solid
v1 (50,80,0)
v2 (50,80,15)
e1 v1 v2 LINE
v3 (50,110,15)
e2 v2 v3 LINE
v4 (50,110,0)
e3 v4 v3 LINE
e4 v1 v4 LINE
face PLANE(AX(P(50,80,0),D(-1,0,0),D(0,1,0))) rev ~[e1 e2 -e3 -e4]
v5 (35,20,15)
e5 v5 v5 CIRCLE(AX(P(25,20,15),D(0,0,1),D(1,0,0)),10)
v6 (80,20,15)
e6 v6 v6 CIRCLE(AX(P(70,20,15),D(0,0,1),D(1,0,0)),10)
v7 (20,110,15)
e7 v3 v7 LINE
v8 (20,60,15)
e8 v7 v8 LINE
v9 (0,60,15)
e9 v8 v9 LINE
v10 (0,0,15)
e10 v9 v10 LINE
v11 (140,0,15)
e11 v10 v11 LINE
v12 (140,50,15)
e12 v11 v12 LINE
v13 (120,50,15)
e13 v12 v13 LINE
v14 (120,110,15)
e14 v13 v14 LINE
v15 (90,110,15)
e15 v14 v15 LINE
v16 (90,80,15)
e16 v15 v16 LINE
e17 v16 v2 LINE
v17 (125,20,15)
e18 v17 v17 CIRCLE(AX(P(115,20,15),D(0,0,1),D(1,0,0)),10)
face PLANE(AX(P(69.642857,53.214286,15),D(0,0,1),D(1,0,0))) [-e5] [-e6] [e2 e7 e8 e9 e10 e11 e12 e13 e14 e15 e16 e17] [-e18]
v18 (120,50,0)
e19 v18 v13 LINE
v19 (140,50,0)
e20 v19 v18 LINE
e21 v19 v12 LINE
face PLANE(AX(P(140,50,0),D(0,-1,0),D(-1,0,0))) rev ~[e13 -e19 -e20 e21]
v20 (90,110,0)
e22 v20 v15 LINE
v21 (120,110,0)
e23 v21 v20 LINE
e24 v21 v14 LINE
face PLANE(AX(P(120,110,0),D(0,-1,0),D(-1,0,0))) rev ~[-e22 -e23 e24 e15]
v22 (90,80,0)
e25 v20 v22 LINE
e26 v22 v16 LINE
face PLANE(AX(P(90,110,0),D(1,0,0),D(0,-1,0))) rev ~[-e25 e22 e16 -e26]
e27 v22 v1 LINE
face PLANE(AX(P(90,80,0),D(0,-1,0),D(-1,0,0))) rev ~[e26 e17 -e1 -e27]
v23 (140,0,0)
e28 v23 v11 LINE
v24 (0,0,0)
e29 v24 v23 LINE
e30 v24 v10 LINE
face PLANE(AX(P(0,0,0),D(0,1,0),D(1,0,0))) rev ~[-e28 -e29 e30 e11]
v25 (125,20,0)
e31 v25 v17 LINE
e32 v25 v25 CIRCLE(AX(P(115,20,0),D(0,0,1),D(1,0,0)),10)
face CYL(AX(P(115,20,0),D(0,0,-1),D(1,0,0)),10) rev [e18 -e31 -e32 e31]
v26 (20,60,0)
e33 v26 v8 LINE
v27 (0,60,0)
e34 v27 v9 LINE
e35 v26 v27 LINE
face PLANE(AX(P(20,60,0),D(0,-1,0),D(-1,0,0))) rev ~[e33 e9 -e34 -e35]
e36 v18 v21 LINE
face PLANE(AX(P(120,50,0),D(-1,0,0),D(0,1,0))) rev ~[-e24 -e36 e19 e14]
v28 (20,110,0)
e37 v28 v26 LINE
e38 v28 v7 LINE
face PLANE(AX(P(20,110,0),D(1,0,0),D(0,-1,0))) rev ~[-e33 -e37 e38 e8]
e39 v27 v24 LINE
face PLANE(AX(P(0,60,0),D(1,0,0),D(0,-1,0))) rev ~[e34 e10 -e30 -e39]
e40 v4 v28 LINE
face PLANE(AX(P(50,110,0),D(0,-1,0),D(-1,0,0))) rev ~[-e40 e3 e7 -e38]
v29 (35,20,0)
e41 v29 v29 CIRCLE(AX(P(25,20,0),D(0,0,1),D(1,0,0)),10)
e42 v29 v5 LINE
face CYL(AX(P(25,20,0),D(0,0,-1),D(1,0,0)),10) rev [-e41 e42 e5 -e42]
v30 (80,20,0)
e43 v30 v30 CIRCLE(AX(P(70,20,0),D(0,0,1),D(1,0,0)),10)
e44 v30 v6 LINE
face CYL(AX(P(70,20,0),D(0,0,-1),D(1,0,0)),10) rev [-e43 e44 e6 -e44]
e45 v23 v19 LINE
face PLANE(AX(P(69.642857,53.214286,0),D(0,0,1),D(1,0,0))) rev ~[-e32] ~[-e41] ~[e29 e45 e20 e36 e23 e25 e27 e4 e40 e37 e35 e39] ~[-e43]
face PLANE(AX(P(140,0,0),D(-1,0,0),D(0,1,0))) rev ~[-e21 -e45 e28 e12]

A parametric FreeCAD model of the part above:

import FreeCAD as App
import Part
import Sketcher

V = App.Vector


def add_polygon(sketch, points):
    """Adds a closed chain of lines whose ends are joined by coincident constraints."""
    first, n = sketch.GeometryCount, len(points)
    for a, b in zip(points, points[1:] + points[:1]):
        sketch.addGeometry(Part.LineSegment(App.Vector(*a, 0), App.Vector(*b, 0)), False)
    for i in range(n):
        sketch.addConstraint(Sketcher.Constraint("Coincident", first + i, 2, first + (i + 1) % n, 1))

doc = App.newDocument("Part")
body = doc.addObject("PartDesign::Body", "Body")

sketch1 = body.newObject("Sketcher::SketchObject", "Sketch")
sketch1.AttachmentSupport = (doc.getObject("XY_Plane"), [""])
sketch1.MapMode = "FlatFace"
add_polygon(sketch1, [(0, 60), (0, 0), (140, 0), (140, 50), (120, 50), (120, 110), (90, 110), (90, 80), (50, 80), (50, 110), (20, 110), (20, 60)])
sketch1.addGeometry(Part.Circle(V(25, 20, 0), V(0, 0, 1), 10), False)
sketch1.addGeometry(Part.Circle(V(70, 20, 0), V(0, 0, 1), 10), False)
sketch1.addGeometry(Part.Circle(V(115, 20, 0), V(0, 0, 1), 10), False)
sketch1.addConstraint([
    Sketcher.Constraint("Vertical", 0),
    Sketcher.Constraint("Horizontal", 1),
    Sketcher.Constraint("Vertical", 2),
    Sketcher.Constraint("Horizontal", 3),
    Sketcher.Constraint("Vertical", 4),
    Sketcher.Constraint("Horizontal", 5),
    Sketcher.Constraint("Vertical", 6),
    Sketcher.Constraint("Horizontal", 7),
    Sketcher.Constraint("Vertical", 8),
    Sketcher.Constraint("Horizontal", 9),
    Sketcher.Constraint("Vertical", 10),
    Sketcher.Constraint("Horizontal", 11),
    Sketcher.Constraint("Coincident", 0, 2, -1, 1),
    Sketcher.Constraint("Equal", 12, 13),
    Sketcher.Constraint("Equal", 13, 14),
    Sketcher.Constraint("Horizontal", 12, 3, 13, 3),
    Sketcher.Constraint("Horizontal", 13, 3, 14, 3),
    Sketcher.Constraint("Horizontal", 5, 2, 8, 2),
    Sketcher.Constraint("Equal", 5, 9),
    Sketcher.Constraint("Equal", 3, 11),
    Sketcher.Constraint("Equal", 0, 4),
    Sketcher.Constraint("Equal", 9, 6),
    Sketcher.Constraint("Diameter", 12, 20.0),
    Sketcher.Constraint("DistanceX", 1, 1, 1, 2, 140.0),
    Sketcher.Constraint("DistanceX", 3, 2, 3, 1, 20.0),
    Sketcher.Constraint("DistanceX", 5, 2, 5, 1, 30.0),
    Sketcher.Constraint("DistanceY", 0, 2, 0, 1, 60.0),
    Sketcher.Constraint("DistanceY", 2, 1, 2, 2, 50.0),
    Sketcher.Constraint("DistanceX", -1, 1, 12, 3, 25.0),
    Sketcher.Constraint("DistanceY", -1, 1, 12, 3, 20.0),
    Sketcher.Constraint("DistanceX", -1, 1, 13, 3, 70.0),
    Sketcher.Constraint("DistanceX", -1, 1, 14, 3, 115.0),
])
pad1 = body.newObject("PartDesign::Pad", "Pad")
pad1.Profile = sketch1
pad1.Length = 15

doc.recompute()
